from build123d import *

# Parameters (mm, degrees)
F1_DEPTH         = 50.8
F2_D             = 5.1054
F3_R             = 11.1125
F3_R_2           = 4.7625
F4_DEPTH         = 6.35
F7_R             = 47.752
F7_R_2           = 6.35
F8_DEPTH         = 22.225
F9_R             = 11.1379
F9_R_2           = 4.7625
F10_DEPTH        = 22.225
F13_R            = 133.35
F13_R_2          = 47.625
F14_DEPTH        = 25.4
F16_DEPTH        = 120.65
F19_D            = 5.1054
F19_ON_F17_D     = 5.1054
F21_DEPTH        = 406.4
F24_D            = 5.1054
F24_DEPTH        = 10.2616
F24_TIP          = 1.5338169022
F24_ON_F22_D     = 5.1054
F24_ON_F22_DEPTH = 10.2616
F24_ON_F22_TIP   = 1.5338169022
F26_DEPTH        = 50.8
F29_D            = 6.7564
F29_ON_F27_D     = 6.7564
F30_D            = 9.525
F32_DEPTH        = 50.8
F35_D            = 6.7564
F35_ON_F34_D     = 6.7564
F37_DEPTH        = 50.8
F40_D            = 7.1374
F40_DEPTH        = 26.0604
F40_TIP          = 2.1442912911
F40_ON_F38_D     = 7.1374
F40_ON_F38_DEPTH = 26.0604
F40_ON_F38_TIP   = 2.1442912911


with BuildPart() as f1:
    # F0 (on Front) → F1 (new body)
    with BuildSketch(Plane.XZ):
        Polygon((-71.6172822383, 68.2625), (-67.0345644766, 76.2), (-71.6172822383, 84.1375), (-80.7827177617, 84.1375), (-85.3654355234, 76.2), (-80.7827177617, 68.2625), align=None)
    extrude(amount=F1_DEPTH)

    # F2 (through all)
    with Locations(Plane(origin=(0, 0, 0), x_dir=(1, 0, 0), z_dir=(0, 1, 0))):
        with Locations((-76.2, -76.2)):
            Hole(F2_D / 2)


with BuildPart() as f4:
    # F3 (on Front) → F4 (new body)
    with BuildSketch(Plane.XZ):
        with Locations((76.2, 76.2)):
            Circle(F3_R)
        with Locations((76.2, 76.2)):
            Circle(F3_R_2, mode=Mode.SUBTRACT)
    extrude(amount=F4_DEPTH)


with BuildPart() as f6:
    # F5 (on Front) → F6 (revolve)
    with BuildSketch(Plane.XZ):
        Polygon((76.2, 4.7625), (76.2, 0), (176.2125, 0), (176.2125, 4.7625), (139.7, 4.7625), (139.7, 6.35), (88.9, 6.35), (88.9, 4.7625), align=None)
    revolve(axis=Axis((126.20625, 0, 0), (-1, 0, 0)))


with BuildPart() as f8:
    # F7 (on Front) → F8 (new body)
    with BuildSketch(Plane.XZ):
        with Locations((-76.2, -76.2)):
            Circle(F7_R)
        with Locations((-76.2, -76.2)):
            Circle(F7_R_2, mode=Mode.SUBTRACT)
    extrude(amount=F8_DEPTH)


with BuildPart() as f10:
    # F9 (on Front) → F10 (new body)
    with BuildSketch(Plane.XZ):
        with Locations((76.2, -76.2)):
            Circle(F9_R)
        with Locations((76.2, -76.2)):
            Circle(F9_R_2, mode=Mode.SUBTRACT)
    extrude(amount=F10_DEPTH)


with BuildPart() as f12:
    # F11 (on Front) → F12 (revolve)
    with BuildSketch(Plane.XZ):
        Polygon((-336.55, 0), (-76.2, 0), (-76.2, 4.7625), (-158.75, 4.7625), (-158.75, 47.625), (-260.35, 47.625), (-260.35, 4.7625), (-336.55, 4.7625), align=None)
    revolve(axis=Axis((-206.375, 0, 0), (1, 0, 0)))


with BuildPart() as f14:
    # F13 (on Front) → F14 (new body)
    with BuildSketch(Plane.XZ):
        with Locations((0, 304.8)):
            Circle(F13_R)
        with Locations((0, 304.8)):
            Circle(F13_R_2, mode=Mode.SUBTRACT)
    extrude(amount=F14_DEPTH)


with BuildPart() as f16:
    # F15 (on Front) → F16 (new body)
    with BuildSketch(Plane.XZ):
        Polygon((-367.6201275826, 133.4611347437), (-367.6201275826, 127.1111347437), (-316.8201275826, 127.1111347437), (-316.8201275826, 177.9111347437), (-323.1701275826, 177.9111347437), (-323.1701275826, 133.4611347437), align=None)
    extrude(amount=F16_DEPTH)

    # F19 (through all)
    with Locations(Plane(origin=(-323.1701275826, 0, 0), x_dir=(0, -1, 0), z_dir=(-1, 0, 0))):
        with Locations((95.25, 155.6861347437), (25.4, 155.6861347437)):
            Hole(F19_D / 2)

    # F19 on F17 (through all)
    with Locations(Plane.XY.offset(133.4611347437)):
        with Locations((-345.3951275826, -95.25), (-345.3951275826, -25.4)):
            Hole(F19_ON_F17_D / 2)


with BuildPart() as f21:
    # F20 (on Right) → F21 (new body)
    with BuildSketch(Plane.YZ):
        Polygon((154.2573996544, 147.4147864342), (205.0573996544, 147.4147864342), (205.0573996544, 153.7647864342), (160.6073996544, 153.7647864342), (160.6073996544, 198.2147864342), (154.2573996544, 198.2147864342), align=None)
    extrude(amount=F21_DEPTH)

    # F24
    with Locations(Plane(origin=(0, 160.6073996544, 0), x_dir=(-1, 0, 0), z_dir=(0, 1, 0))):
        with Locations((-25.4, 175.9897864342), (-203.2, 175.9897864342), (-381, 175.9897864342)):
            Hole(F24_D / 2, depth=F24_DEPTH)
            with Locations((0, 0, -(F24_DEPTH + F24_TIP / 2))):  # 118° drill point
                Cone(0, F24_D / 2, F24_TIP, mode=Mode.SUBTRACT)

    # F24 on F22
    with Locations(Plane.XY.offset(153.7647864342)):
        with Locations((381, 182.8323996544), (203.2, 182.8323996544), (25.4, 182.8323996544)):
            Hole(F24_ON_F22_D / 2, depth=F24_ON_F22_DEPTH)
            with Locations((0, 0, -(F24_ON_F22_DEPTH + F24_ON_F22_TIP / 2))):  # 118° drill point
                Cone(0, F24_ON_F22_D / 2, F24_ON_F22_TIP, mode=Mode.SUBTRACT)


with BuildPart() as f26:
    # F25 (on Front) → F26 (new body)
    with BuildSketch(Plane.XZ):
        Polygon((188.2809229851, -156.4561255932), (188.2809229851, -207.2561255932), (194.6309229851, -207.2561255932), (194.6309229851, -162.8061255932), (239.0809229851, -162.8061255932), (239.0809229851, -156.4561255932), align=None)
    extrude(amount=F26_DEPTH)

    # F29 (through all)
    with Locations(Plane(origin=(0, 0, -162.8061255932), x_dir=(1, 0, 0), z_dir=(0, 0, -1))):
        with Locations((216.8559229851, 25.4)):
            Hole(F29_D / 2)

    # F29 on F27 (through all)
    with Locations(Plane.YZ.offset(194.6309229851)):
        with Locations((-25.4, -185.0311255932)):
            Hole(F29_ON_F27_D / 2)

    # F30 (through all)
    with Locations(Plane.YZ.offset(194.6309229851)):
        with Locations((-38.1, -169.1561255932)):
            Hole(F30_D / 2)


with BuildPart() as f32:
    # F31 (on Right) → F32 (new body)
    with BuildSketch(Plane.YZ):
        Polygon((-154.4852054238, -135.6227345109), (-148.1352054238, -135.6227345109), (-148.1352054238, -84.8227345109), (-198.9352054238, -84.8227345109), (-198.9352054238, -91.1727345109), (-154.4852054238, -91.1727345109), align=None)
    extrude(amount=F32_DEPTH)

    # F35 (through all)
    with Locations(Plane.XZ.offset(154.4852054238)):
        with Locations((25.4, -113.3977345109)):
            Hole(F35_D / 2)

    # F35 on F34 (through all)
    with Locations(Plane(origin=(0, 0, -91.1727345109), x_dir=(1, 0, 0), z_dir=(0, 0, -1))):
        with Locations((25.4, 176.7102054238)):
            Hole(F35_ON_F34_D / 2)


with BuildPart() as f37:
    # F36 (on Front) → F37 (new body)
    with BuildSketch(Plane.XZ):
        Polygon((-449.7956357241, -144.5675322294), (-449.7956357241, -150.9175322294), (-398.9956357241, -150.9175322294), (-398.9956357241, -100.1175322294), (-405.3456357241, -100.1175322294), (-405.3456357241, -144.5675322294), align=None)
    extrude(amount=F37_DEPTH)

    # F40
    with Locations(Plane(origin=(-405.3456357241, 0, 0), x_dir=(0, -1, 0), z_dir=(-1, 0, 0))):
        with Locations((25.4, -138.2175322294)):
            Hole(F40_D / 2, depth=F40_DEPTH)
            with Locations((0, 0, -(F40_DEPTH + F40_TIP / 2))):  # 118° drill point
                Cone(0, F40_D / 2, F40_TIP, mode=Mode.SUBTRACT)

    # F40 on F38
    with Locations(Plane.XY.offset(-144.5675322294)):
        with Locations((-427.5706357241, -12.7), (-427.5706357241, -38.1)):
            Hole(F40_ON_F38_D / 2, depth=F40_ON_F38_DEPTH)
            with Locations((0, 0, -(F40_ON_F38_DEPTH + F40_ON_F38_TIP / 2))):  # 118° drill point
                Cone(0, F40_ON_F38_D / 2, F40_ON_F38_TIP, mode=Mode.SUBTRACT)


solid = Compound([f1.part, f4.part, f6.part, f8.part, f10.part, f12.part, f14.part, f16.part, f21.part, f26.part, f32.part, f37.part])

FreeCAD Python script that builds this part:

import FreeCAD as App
import Part
import Sketcher
from FreeCAD import Vector
Q = App.Units.Quantity

doc = App.newDocument("Part")
body = doc.addObject("PartDesign::Body", "Body")

# Sketch on XZ plane
sketch1 = doc.addObject("Sketcher::SketchObject", "Sketch")
body.addObject(sketch1)
sketch1.AttachmentSupport = (doc.XZ_Plane, [""])
sketch1.MapMode = "FlatFace"
sketch1.addGeometry([
    Part.LineSegment(Vector(-72, 68, 0), Vector(-67, 76, 0)),  # 0
    Part.LineSegment(Vector(-67, 76, 0), Vector(-72, 84, 0)),  # 1
    Part.LineSegment(Vector(-72, 84, 0), Vector(-81, 84, 0)),  # 2
    Part.LineSegment(Vector(-81, 84, 0), Vector(-85, 76, 0)),  # 3
    Part.LineSegment(Vector(-85, 76, 0), Vector(-81, 68, 0)),  # 4
    Part.LineSegment(Vector(-81, 68, 0), Vector(-72, 68, 0)),  # 5
], False)
sketch1.addConstraint([
    Sketcher.Constraint("Coincident", 0, 2, 1, 1),
    Sketcher.Constraint("Coincident", 1, 2, 2, 1),
    Sketcher.Constraint("Coincident", 2, 2, 3, 1),
    Sketcher.Constraint("Coincident", 3, 2, 4, 1),
    Sketcher.Constraint("Coincident", 4, 2, 5, 1),
    Sketcher.Constraint("Coincident", 5, 2, 0, 1),
    Sketcher.Constraint("Horizontal", 2),
    Sketcher.Constraint("Horizontal", 5),
    Sketcher.Constraint("Parallel", 0, 3),
    Sketcher.Constraint("Parallel", 1, 4),
    Sketcher.Constraint("Horizontal", 0, 2, 3, 2),
    Sketcher.Constraint("Vertical", 2, 2, 4, 2),
    Sketcher.Constraint("Vertical", 1, 2, 5, 2),
    Sketcher.Constraint("DistanceY", -1, 1, 0, 2, Q("3 in")),
    Sketcher.Constraint("Angle", 0, Q("60 deg")),
    Sketcher.Constraint("DistanceY", -1, 1, 1, 2, Q("3.3125 in")),
    Sketcher.Constraint("DistanceX", 2, 2, 2, 1, Q("9.165436 mm")),
    Sketcher.Constraint("DistanceX", 0, 2, -1, 1, Q("67.034564 mm")),
])
pad1 = doc.addObject("PartDesign::Pad", "Pad")
body.addObject(pad1)
pad1.Profile = sketch1
pad1.Length = Q("2 in")

# Sketch on XZ plane
sketch2 = doc.addObject("Sketcher::SketchObject", "Sketch001")
body.addObject(sketch2)
sketch2.AttachmentSupport = (doc.XZ_Plane, [""])
sketch2.MapMode = "FlatFace"
sketch2.addGeometry(Part.Circle(Vector(-76.2, 76.2, 0), Vector(0, 0, 1), 2.6), False)
sketch2.addConstraint([
    Sketcher.Constraint("Diameter", 0, Q("0.201 in")),
    Sketcher.Constraint("DistanceX", 0, 3, -1, 1, Q("3 in")),
    Sketcher.Constraint("DistanceY", -1, 1, 0, 3, Q("3 in")),
])
doc.recompute()
hole = doc.addObject("PartDesign::Hole", "Hole")
body.addObject(hole)
hole.Profile = sketch2
hole.ThreadType = "None"
hole.Diameter = Q("0.201 in")
hole.DepthType = "ThroughAll"
hole.Reversed = True
body2 = doc.addObject("PartDesign::Body", "Body001")

# Sketch on XZ plane
sketch3 = doc.addObject("Sketcher::SketchObject", "Sketch002")
body2.addObject(sketch3)
sketch3.AttachmentSupport = (doc.getObject("XZ_Plane001"), [""])
sketch3.MapMode = "FlatFace"
sketch3.addGeometry([
    Part.Circle(Vector(76.2, 76.2, 0), Vector(0, 0, 1), 11.1),
    Part.Circle(Vector(76.2, 76.2, 0), Vector(0, 0, 1), 4.8),
], False)
sketch3.addConstraint([
    Sketcher.Constraint("Coincident", 1, 3, 0, 3),
    Sketcher.Constraint("Diameter", 0, Q("0.875 in")),
    Sketcher.Constraint("Diameter", 1, Q("0.375 in")),
    Sketcher.Constraint("DistanceX", -1, 1, 0, 3, Q("3 in")),
    Sketcher.Constraint("DistanceY", -1, 1, 0, 3, Q("3 in")),
])
pad2 = doc.addObject("PartDesign::Pad", "Pad001")
body2.addObject(pad2)
pad2.Profile = sketch3
pad2.Length = Q("0.25 in")
body3 = doc.addObject("PartDesign::Body", "Body002")

# Sketch on XZ plane
sketch4 = doc.addObject("Sketcher::SketchObject", "Sketch003")
body3.addObject(sketch4)
sketch4.AttachmentSupport = (doc.getObject("XZ_Plane002"), [""])
sketch4.MapMode = "FlatFace"
sketch4.addGeometry([
    Part.LineSegment(Vector(76.2, 4.8, 0), Vector(76.2, 0, 0)),  # 0
    Part.LineSegment(Vector(76.2, 0, 0), Vector(176.2, 0, 0)),  # 1
    Part.LineSegment(Vector(176.2, 0, 0), Vector(176.2, 4.8, 0)),  # 2
    Part.LineSegment(Vector(176.2, 4.8, 0), Vector(139.7, 4.8, 0)),  # 3
    Part.LineSegment(Vector(139.7, 4.8, 0), Vector(139.7, 6.3, 0)),  # 4
    Part.LineSegment(Vector(139.7, 6.3, 0), Vector(88.9, 6.3, 0)),  # 5
    Part.LineSegment(Vector(88.9, 6.3, 0), Vector(88.9, 4.8, 0)),  # 6
    Part.LineSegment(Vector(88.9, 4.8, 0), Vector(76.2, 4.8, 0)),  # 7
], False)
sketch4.addConstraint([
    Sketcher.Constraint("Coincident", 0, 2, 1, 1),
    Sketcher.Constraint("Coincident", 1, 2, 2, 1),
    Sketcher.Constraint("Coincident", 2, 2, 3, 1),
    Sketcher.Constraint("Coincident", 3, 2, 4, 1),
    Sketcher.Constraint("Coincident", 4, 2, 5, 1),
    Sketcher.Constraint("Coincident", 5, 2, 6, 1),
    Sketcher.Constraint("Coincident", 6, 2, 7, 1),
    Sketcher.Constraint("Coincident", 7, 2, 0, 1),
    Sketcher.Constraint("Vertical", 0),
    Sketcher.Constraint("Horizontal", 1),
    Sketcher.Constraint("Vertical", 2),
    Sketcher.Constraint("Horizontal", 3),
    Sketcher.Constraint("Vertical", 4),
    Sketcher.Constraint("Horizontal", 5),
    Sketcher.Constraint("Vertical", 6),
    Sketcher.Constraint("Horizontal", 7),
    Sketcher.Constraint("PointOnObject", 0, 2, -1),
    Sketcher.Constraint("Horizontal", 3, 2, 6, 2),
    Sketcher.Constraint("DistanceX", 5, 2, 5, 1, Q("2 in")),
    Sketcher.Constraint("DistanceX", 7, 2, 7, 1, Q("0.5 in")),
    Sketcher.Constraint("DistanceX", -1, 1, 0, 2, Q("3 in")),
    Sketcher.Constraint("DistanceX", 1, 1, 1, 2, Q("3.9375 in")),
    Sketcher.Constraint("DistanceY", 0, 2, 0, 1, Q("0.1875 in")),
    Sketcher.Constraint("DistanceY", 4, 1, 4, 2, Q("0.0625 in")),
])
revolution = doc.addObject("PartDesign::Revolution", "Revolution")
body3.addObject(revolution)
revolution.Profile = sketch4
revolution.ReferenceAxis = (sketch4, ["H_Axis"])
revolution.Angle = 360
body4 = doc.addObject("PartDesign::Body", "Body003")

# Sketch on XZ plane
sketch5 = doc.addObject("Sketcher::SketchObject", "Sketch004")
body4.addObject(sketch5)
sketch5.AttachmentSupport = (doc.getObject("XZ_Plane003"), [""])
sketch5.MapMode = "FlatFace"
sketch5.addGeometry([
    Part.Circle(Vector(-76, -76, 0), Vector(0, 0, 1), 48),
    Part.Circle(Vector(-76, -76, 0), Vector(0, 0, 1), 6),
], False)
sketch5.addConstraint([
    Sketcher.Constraint("Coincident", 1, 3, 0, 3),
    Sketcher.Constraint("Diameter", 1, Q("0.5 in")),
    Sketcher.Constraint("Diameter", 0, Q("3.76 in")),
    Sketcher.Constraint("DistanceX", 0, 3, -1, 1, Q("3 in")),
    Sketcher.Constraint("DistanceY", 0, 3, -1, 1, Q("3 in")),
])
pad3 = doc.addObject("PartDesign::Pad", "Pad002")
body4.addObject(pad3)
pad3.Profile = sketch5
pad3.Length = Q("0.875 in")
body5 = doc.addObject("PartDesign::Body", "Body004")

# Sketch on XZ plane
sketch6 = doc.addObject("Sketcher::SketchObject", "Sketch005")
body5.addObject(sketch6)
sketch6.AttachmentSupport = (doc.getObject("XZ_Plane004"), [""])
sketch6.MapMode = "FlatFace"
sketch6.addGeometry([
    Part.Circle(Vector(76.2, -76.2, 0), Vector(0, 0, 1), 11.1),
    Part.Circle(Vector(76.2, -76.2, 0), Vector(0, 0, 1), 4.8),
], False)
sketch6.addConstraint([
    Sketcher.Constraint("Coincident", 1, 3, 0, 3),
    Sketcher.Constraint("Diameter", 0, Q("0.877 in")),
    Sketcher.Constraint("Diameter", 1, Q("0.375 in")),
    Sketcher.Constraint("DistanceX", -1, 1, 0, 3, Q("3 in")),
    Sketcher.Constraint("DistanceY", 0, 3, -1, 1, Q("3 in")),
])
pad4 = doc.addObject("PartDesign::Pad", "Pad003")
body5.addObject(pad4)
pad4.Profile = sketch6
pad4.Length = Q("0.875 in")
body6 = doc.addObject("PartDesign::Body", "Body005")

# Sketch on XZ plane
sketch7 = doc.addObject("Sketcher::SketchObject", "Sketch006")
body6.addObject(sketch7)
sketch7.AttachmentSupport = (doc.getObject("XZ_Plane005"), [""])
sketch7.MapMode = "FlatFace"
sketch7.addGeometry([
    Part.LineSegment(Vector(-336.6, 0, 0), Vector(-76.2, 0, 0)),  # 0
    Part.LineSegment(Vector(-76.2, 0, 0), Vector(-76.2, 4.8, 0)),  # 1
    Part.LineSegment(Vector(-76.2, 4.8, 0), Vector(-158.8, 4.8, 0)),  # 2
    Part.LineSegment(Vector(-158.8, 4.8, 0), Vector(-158.8, 47.6, 0)),  # 3
    Part.LineSegment(Vector(-158.8, 47.6, 0), Vector(-260.4, 47.6, 0)),  # 4
    Part.LineSegment(Vector(-260.4, 47.6, 0), Vector(-260.4, 4.8, 0)),  # 5
    Part.LineSegment(Vector(-260.4, 4.8, 0), Vector(-336.6, 4.8, 0)),  # 6
    Part.LineSegment(Vector(-336.6, 4.8, 0), Vector(-336.6, 0, 0)),  # 7
], False)
sketch7.addConstraint([
    Sketcher.Constraint("Coincident", 0, 2, 1, 1),
    Sketcher.Constraint("Coincident", 1, 2, 2, 1),
    Sketcher.Constraint("Coincident", 2, 2, 3, 1),
    Sketcher.Constraint("Coincident", 3, 2, 4, 1),
    Sketcher.Constraint("Coincident", 4, 2, 5, 1),
    Sketcher.Constraint("Coincident", 5, 2, 6, 1),
    Sketcher.Constraint("Coincident", 6, 2, 7, 1),
    Sketcher.Constraint("Coincident", 7, 2, 0, 1),
    Sketcher.Constraint("Horizontal", 0),
    Sketcher.Constraint("Vertical", 1),
    Sketcher.Constraint("Horizontal", 2),
    Sketcher.Constraint("Vertical", 3),
    Sketcher.Constraint("Horizontal", 4),
    Sketcher.Constraint("Vertical", 5),
    Sketcher.Constraint("Horizontal", 6),
    Sketcher.Constraint("Vertical", 7),
    Sketcher.Constraint("PointOnObject", 0, 2, -1),
    Sketcher.Constraint("Horizontal", 2, 2, 5, 2),
    Sketcher.Constraint("DistanceX", 4, 2, 4, 1, Q("4 in")),
    Sketcher.Constraint("DistanceX", 6, 2, 6, 1, Q("3 in")),
    Sketcher.Constraint("DistanceX", 0, 2, -1, 1, Q("3 in")),
    Sketcher.Constraint("DistanceX", 0, 1, 0, 2, Q("10.25 in")),
    Sketcher.Constraint("DistanceY", 1, 1, 1, 2, Q("0.1875 in")),
    Sketcher.Constraint("DistanceY", 3, 1, 3, 2, Q("1.6875 in")),
])
revolution2 = doc.addObject("PartDesign::Revolution", "Revolution001")
body6.addObject(revolution2)
revolution2.Profile = sketch7
revolution2.ReferenceAxis = (sketch7, ["H_Axis"])
revolution2.Angle = 360
body7 = doc.addObject("PartDesign::Body", "Body006")

# Sketch on XZ plane
sketch8 = doc.addObject("Sketcher::SketchObject", "Sketch007")
body7.addObject(sketch8)
sketch8.AttachmentSupport = (doc.getObject("XZ_Plane006"), [""])
sketch8.MapMode = "FlatFace"
sketch8.addGeometry([
    Part.Circle(Vector(0, 305, 0), Vector(0, 0, 1), 133),
    Part.Circle(Vector(0, 305, 0), Vector(0, 0, 1), 48),
], False)
sketch8.addConstraint([
    Sketcher.Constraint("Coincident", 1, 3, 0, 3),
    Sketcher.Constraint("PointOnObject", 0, 3, -2),
    Sketcher.Constraint("Diameter", 0, Q("10.5 in")),
    Sketcher.Constraint("Diameter", 1, Q("3.75 in")),
    Sketcher.Constraint("DistanceY", -1, 1, 0, 3, Q("12 in")),
])
pad5 = doc.addObject("PartDesign::Pad", "Pad004")
body7.addObject(pad5)
pad5.Profile = sketch8
pad5.Length = Q("1 in")
body8 = doc.addObject("PartDesign::Body", "Body007")

# Sketch on XZ plane
sketch9 = doc.addObject("Sketcher::SketchObject", "Sketch008")
body8.addObject(sketch9)
sketch9.AttachmentSupport = (doc.getObject("XZ_Plane007"), [""])
sketch9.MapMode = "FlatFace"
sketch9.addGeometry([
    Part.LineSegment(Vector(-368, 133, 0), Vector(-368, 127, 0)),  # 0
    Part.LineSegment(Vector(-368, 127, 0), Vector(-317, 127, 0)),  # 1
    Part.LineSegment(Vector(-317, 127, 0), Vector(-317, 178, 0)),  # 2
    Part.LineSegment(Vector(-317, 178, 0), Vector(-323, 178, 0)),  # 3
    Part.LineSegment(Vector(-323, 178, 0), Vector(-323, 133, 0)),  # 4
    Part.LineSegment(Vector(-323, 133, 0), Vector(-368, 133, 0)),  # 5
], False)
sketch9.addConstraint([
    Sketcher.Constraint("Coincident", 0, 2, 1, 1),
    Sketcher.Constraint("Coincident", 1, 2, 2, 1),
    Sketcher.Constraint("Coincident", 2, 2, 3, 1),
    Sketcher.Constraint("Coincident", 3, 2, 4, 1),
    Sketcher.Constraint("Coincident", 4, 2, 5, 1),
    Sketcher.Constraint("Coincident", 5, 2, 0, 1),
    Sketcher.Constraint("Vertical", 0),
    Sketcher.Constraint("Horizontal", 1),
    Sketcher.Constraint("Vertical", 2),
    Sketcher.Constraint("Horizontal", 3),
    Sketcher.Constraint("Vertical", 4),
    Sketcher.Constraint("Horizontal", 5),
    Sketcher.Constraint("Equal", 3, 0),
    Sketcher.Constraint("Equal", 1, 2),
    Sketcher.Constraint("DistanceX", 1, 1, 1, 2, Q("2 in")),
    Sketcher.Constraint("DistanceX", 3, 2, 3, 1, Q("0.25 in")),
    Sketcher.Constraint("DistanceX", 0, 2, -1, 1, Q("367.620128 mm")),
    Sketcher.Constraint("DistanceY", -1, 1, 0, 2, Q("127.111135 mm")),
])
pad6 = doc.addObject("PartDesign::Pad", "Pad005")
body8.addObject(pad6)
pad6.Profile = sketch9
pad6.Length = Q("4.75 in")

# Sketch on YZ plane
sketch10 = doc.addObject("Sketcher::SketchObject", "Sketch009")
body8.addObject(sketch10)
sketch10.AttachmentSupport = (doc.getObject("YZ_Plane007"), [""])
sketch10.MapMode = "FlatFace"
sketch10.AttachmentOffset = App.Placement(Vector(0, 0, -323.170128), App.Rotation())
sketch10.addGeometry([
    Part.Circle(Vector(-95.2, 155.7, 0), Vector(0, 0, 1), 2.6),
    Part.Circle(Vector(-25.4, 155.7, 0), Vector(0, 0, 1), 2.6),
], False)
sketch10.addConstraint([
    Sketcher.Constraint("Equal", 0, 1),
    Sketcher.Constraint("Horizontal", 0, 3, 1, 3),
    Sketcher.Constraint("Diameter", 0, Q("0.201 in")),
    Sketcher.Constraint("DistanceX", 1, 3, -1, 1, Q("1 in")),
    Sketcher.Constraint("DistanceX", 0, 3, -1, 1, Q("3.75 in")),
    Sketcher.Constraint("DistanceY", -1, 1, 0, 3, Q("155.686135 mm")),
])
doc.recompute()
hole2 = doc.addObject("PartDesign::Hole", "Hole001")
body8.addObject(hole2)
hole2.Profile = sketch10
hole2.ThreadType = "None"
hole2.Diameter = Q("0.201 in")
hole2.DepthType = "ThroughAll"
hole2.Reversed = True

# Sketch on XY plane
sketch11 = doc.addObject("Sketcher::SketchObject", "Sketch010")
body8.addObject(sketch11)
sketch11.AttachmentSupport = (doc.getObject("XY_Plane007"), [""])
sketch11.MapMode = "FlatFace"
sketch11.AttachmentOffset = App.Placement(Vector(0, 0, 133.461135), App.Rotation())
sketch11.addGeometry([
    Part.Circle(Vector(-345.4, -95.2, 0), Vector(0, 0, 1), 2.6),
    Part.Circle(Vector(-345.4, -25.4, 0), Vector(0, 0, 1), 2.6),
], False)
sketch11.addConstraint([
    Sketcher.Constraint("Equal", 0, 1),
    Sketcher.Constraint("Vertical", 0, 3, 1, 3),
    Sketcher.Constraint("Diameter", 0, Q("0.201 in")),
    Sketcher.Constraint("DistanceY", 1, 3, -1, 1, Q("1 in")),
    Sketcher.Constraint("DistanceY", 0, 3, -1, 1, Q("3.75 in")),
    Sketcher.Constraint("DistanceX", 0, 3, -1, 1, Q("345.395128 mm")),
])
doc.recompute()
hole3 = doc.addObject("PartDesign::Hole", "Hole002")
body8.addObject(hole3)
hole3.Profile = sketch11
hole3.ThreadType = "None"
hole3.Diameter = Q("0.201 in")
hole3.DepthType = "ThroughAll"
body9 = doc.addObject("PartDesign::Body", "Body008")

# Sketch on YZ plane
sketch12 = doc.addObject("Sketcher::SketchObject", "Sketch011")
body9.addObject(sketch12)
sketch12.AttachmentSupport = (doc.getObject("YZ_Plane008"), [""])
sketch12.MapMode = "FlatFace"
sketch12.addGeometry([
    Part.LineSegment(Vector(154, 147, 0), Vector(205, 147, 0)),  # 0
    Part.LineSegment(Vector(205, 147, 0), Vector(205, 154, 0)),  # 1
    Part.LineSegment(Vector(205, 154, 0), Vector(161, 154, 0)),  # 2
    Part.LineSegment(Vector(161, 154, 0), Vector(161, 198, 0)),  # 3
    Part.LineSegment(Vector(161, 198, 0), Vector(154, 198, 0)),  # 4
    Part.LineSegment(Vector(154, 198, 0), Vector(154, 147, 0)),  # 5
], False)
sketch12.addConstraint([
    Sketcher.Constraint("Coincident", 0, 2, 1, 1),
    Sketcher.Constraint("Coincident", 1, 2, 2, 1),
    Sketcher.Constraint("Coincident", 2, 2, 3, 1),
    Sketcher.Constraint("Coincident", 3, 2, 4, 1),
    Sketcher.Constraint("Coincident", 4, 2, 5, 1),
    Sketcher.Constraint("Coincident", 5, 2, 0, 1),
    Sketcher.Constraint("Horizontal", 0),
    Sketcher.Constraint("Vertical", 1),
    Sketcher.Constraint("Horizontal", 2),
    Sketcher.Constraint("Vertical", 3),
    Sketcher.Constraint("Horizontal", 4),
    Sketcher.Constraint("Vertical", 5),
    Sketcher.Constraint("Equal", 4, 1),
    Sketcher.Constraint("Equal", 2, 3),
    Sketcher.Constraint("DistanceX", 0, 1, 0, 2, Q("2 in")),
    Sketcher.Constraint("DistanceX", 2, 2, 2, 1, Q("1.75 in")),
    Sketcher.Constraint("DistanceX", -1, 1, 0, 2, Q("205.0574 mm")),
    Sketcher.Constraint("DistanceY", -1, 1, 0, 2, Q("147.414786 mm")),
])
pad7 = doc.addObject("PartDesign::Pad", "Pad006")
body9.addObject(pad7)
pad7.Profile = sketch12
pad7.Length = Q("16 in")

# Sketch on XZ plane
sketch13 = doc.addObject("Sketcher::SketchObject", "Sketch012")
body9.addObject(sketch13)
sketch13.AttachmentSupport = (doc.getObject("XZ_Plane008"), [""])
sketch13.MapMode = "FlatFace"
sketch13.AttachmentOffset = App.Placement(Vector(0, 0, -160.6074), App.Rotation())
sketch13.addGeometry([
    Part.Circle(Vector(25.4, 176, 0), Vector(0, 0, 1), 2.6),
    Part.Circle(Vector(203.2, 176, 0), Vector(0, 0, 1), 2.6),
    Part.Circle(Vector(381, 176, 0), Vector(0, 0, 1), 2.6),
], False)
sketch13.addConstraint([
    Sketcher.Constraint("Equal", 0, 1),
    Sketcher.Constraint("Equal", 1, 2),
    Sketcher.Constraint("Horizontal", 0, 3, 1, 3),
    Sketcher.Constraint("Horizontal", 1, 3, 2, 3),
    Sketcher.Constraint("Diameter", 0, Q("0.201 in")),
    Sketcher.Constraint("DistanceX", -1, 1, 0, 3, Q("1 in")),
    Sketcher.Constraint("DistanceX", -1, 1, 1, 3, Q("8 in")),
    Sketcher.Constraint("DistanceX", -1, 1, 2, 3, Q("15 in")),
    Sketcher.Constraint("DistanceY", -1, 1, 0, 3, Q("175.989786 mm")),
])
doc.recompute()
hole4 = doc.addObject("PartDesign::Hole", "Hole003")
body9.addObject(hole4)
hole4.Profile = sketch13
hole4.ThreadType = "None"
hole4.Diameter = Q("0.201 in")
hole4.DepthType = "Dimension"
hole4.Depth = Q("0.404 in")
hole4.DrillPoint = "Angled"
hole4.DrillPointAngle = 118
hole4.Reversed = True

# Sketch on XY plane
sketch14 = doc.addObject("Sketcher::SketchObject", "Sketch013")
body9.addObject(sketch14)
sketch14.AttachmentSupport = (doc.getObject("XY_Plane008"), [""])
sketch14.MapMode = "FlatFace"
sketch14.AttachmentOffset = App.Placement(Vector(0, 0, 153.764786), App.Rotation())
sketch14.addGeometry([
    Part.Circle(Vector(381, 182.8, 0), Vector(0, 0, 1), 2.6),
    Part.Circle(Vector(203.2, 182.8, 0), Vector(0, 0, 1), 2.6),
    Part.Circle(Vector(25.4, 182.8, 0), Vector(0, 0, 1), 2.6),
], False)
sketch14.addConstraint([
    Sketcher.Constraint("Equal", 0, 1),
    Sketcher.Constraint("Equal", 1, 2),
    Sketcher.Constraint("Horizontal", 0, 3, 1, 3),
    Sketcher.Constraint("Horizontal", 1, 3, 2, 3),
    Sketcher.Constraint("Diameter", 0, Q("0.201 in")),
    Sketcher.Constraint("DistanceX", -1, 1, 0, 3, Q("15 in")),
    Sketcher.Constraint("DistanceX", -1, 1, 1, 3, Q("8 in")),
    Sketcher.Constraint("DistanceX", -1, 1, 2, 3, Q("1 in")),
    Sketcher.Constraint("DistanceY", -1, 1, 0, 3, Q("182.8324 mm")),
])
doc.recompute()
hole5 = doc.addObject("PartDesign::Hole", "Hole004")
body9.addObject(hole5)
hole5.Profile = sketch14
hole5.ThreadType = "None"
hole5.Diameter = Q("0.201 in")
hole5.DepthType = "Dimension"
hole5.Depth = Q("0.404 in")
hole5.DrillPoint = "Angled"
hole5.DrillPointAngle = 118
body10 = doc.addObject("PartDesign::Body", "Body009")

# Sketch on XZ plane
sketch15 = doc.addObject("Sketcher::SketchObject", "Sketch014")
body10.addObject(sketch15)
sketch15.AttachmentSupport = (doc.getObject("XZ_Plane009"), [""])
sketch15.MapMode = "FlatFace"
sketch15.addGeometry([
    Part.LineSegment(Vector(188, -156, 0), Vector(188, -207, 0)),  # 0
    Part.LineSegment(Vector(188, -207, 0), Vector(195, -207, 0)),  # 1
    Part.LineSegment(Vector(195, -207, 0), Vector(195, -163, 0)),  # 2
    Part.LineSegment(Vector(195, -163, 0), Vector(239, -163, 0)),  # 3
    Part.LineSegment(Vector(239, -163, 0), Vector(239, -156, 0)),  # 4
    Part.LineSegment(Vector(239, -156, 0), Vector(188, -156, 0)),  # 5
], False)
sketch15.addConstraint([
    Sketcher.Constraint("Coincident", 0, 2, 1, 1),
    Sketcher.Constraint("Coincident", 1, 2, 2, 1),
    Sketcher.Constraint("Coincident", 2, 2, 3, 1),
    Sketcher.Constraint("Coincident", 3, 2, 4, 1),
    Sketcher.Constraint("Coincident", 4, 2, 5, 1),
    Sketcher.Constraint("Coincident", 5, 2, 0, 1),
    Sketcher.Constraint("Vertical", 0),
    Sketcher.Constraint("Horizontal", 1),
    Sketcher.Constraint("Vertical", 2),
    Sketcher.Constraint("Horizontal", 3),
    Sketcher.Constraint("Vertical", 4),
    Sketcher.Constraint("Horizontal", 5),
    Sketcher.Constraint("Equal", 5, 0),
    Sketcher.Constraint("Equal", 3, 2),
    Sketcher.Constraint("DistanceX", 5, 2, 5, 1, Q("2 in")),
    Sketcher.Constraint("DistanceX", 1, 1, 1, 2, Q("0.25 in")),
    Sketcher.Constraint("DistanceX", -1, 1, 0, 2, Q("188.280923 mm")),
    Sketcher.Constraint("DistanceY", 0, 2, -1, 1, Q("207.256126 mm")),
])
pad8 = doc.addObject("PartDesign::Pad", "Pad007")
body10.addObject(pad8)
pad8.Profile = sketch15
pad8.Length = Q("2 in")

# Sketch on XY plane
sketch16 = doc.addObject("Sketcher::SketchObject", "Sketch015")
body10.addObject(sketch16)
sketch16.AttachmentSupport = (doc.getObject("XY_Plane009"), [""])
sketch16.MapMode = "FlatFace"
sketch16.AttachmentOffset = App.Placement(Vector(0, 0, -162.806126), App.Rotation())
sketch16.addGeometry(Part.Circle(Vector(216.9, -25.4, 0), Vector(0, 0, 1), 3.4), False)
sketch16.addConstraint([
    Sketcher.Constraint("Diameter", 0, Q("0.266 in")),
    Sketcher.Constraint("DistanceY", 0, 3, -1, 1, Q("1 in")),
    Sketcher.Constraint("DistanceX", -1, 1, 0, 3, Q("216.855923 mm")),
])
doc.recompute()
hole6 = doc.addObject("PartDesign::Hole", "Hole005")
body10.addObject(hole6)
hole6.Profile = sketch16
hole6.ThreadType = "None"
hole6.Diameter = Q("0.266 in")
hole6.DepthType = "ThroughAll"
hole6.Reversed = True

# Sketch on YZ plane
sketch17 = doc.addObject("Sketcher::SketchObject", "Sketch016")
body10.addObject(sketch17)
sketch17.AttachmentSupport = (doc.getObject("YZ_Plane009"), [""])
sketch17.MapMode = "FlatFace"
sketch17.AttachmentOffset = App.Placement(Vector(0, 0, 194.630923), App.Rotation())
sketch17.addGeometry(Part.Circle(Vector(-25.4, -185, 0), Vector(0, 0, 1), 3.4), False)
sketch17.addConstraint([
    Sketcher.Constraint("Diameter", 0, Q("0.266 in")),
    Sketcher.Constraint("DistanceX", 0, 3, -1, 1, Q("1 in")),
    Sketcher.Constraint("DistanceY", 0, 3, -1, 1, Q("185.031126 mm")),
])
doc.recompute()
hole7 = doc.addObject("PartDesign::Hole", "Hole006")
body10.addObject(hole7)
hole7.Profile = sketch17
hole7.ThreadType = "None"
hole7.Diameter = Q("0.266 in")
hole7.DepthType = "ThroughAll"

# Sketch on YZ plane
sketch18 = doc.addObject("Sketcher::SketchObject", "Sketch017")
body10.addObject(sketch18)
sketch18.AttachmentSupport = (doc.getObject("YZ_Plane009"), [""])
sketch18.MapMode = "FlatFace"
sketch18.AttachmentOffset = App.Placement(Vector(0, 0, 194.630923), App.Rotation())
sketch18.addGeometry(Part.Circle(Vector(-38.1, -169.2, 0), Vector(0, 0, 1), 4.8), False)
sketch18.addConstraint([
    Sketcher.Constraint("Diameter", 0, Q("0.375 in")),
    Sketcher.Constraint("DistanceX", 0, 3, -1, 1, Q("1.5 in")),
    Sketcher.Constraint("DistanceY", 0, 3, -1, 1, Q("169.156126 mm")),
])
doc.recompute()
hole8 = doc.addObject("PartDesign::Hole", "Hole007")
body10.addObject(hole8)
hole8.Profile = sketch18
hole8.ThreadType = "None"
hole8.Diameter = Q("0.375 in")
hole8.DepthType = "ThroughAll"
body11 = doc.addObject("PartDesign::Body", "Body010")

# Sketch on YZ plane
sketch19 = doc.addObject("Sketcher::SketchObject", "Sketch018")
body11.addObject(sketch19)
sketch19.AttachmentSupport = (doc.getObject("YZ_Plane010"), [""])
sketch19.MapMode = "FlatFace"
sketch19.addGeometry([
    Part.LineSegment(Vector(-154, -136, 0), Vector(-148, -136, 0)),  # 0
    Part.LineSegment(Vector(-148, -136, 0), Vector(-148, -85, 0)),  # 1
    Part.LineSegment(Vector(-148, -85, 0), Vector(-199, -85, 0)),  # 2
    Part.LineSegment(Vector(-199, -85, 0), Vector(-199, -91, 0)),  # 3
    Part.LineSegment(Vector(-199, -91, 0), Vector(-154, -91, 0)),  # 4
    Part.LineSegment(Vector(-154, -91, 0), Vector(-154, -136, 0)),  # 5
], False)
sketch19.addConstraint([
    Sketcher.Constraint("Coincident", 0, 2, 1, 1),
    Sketcher.Constraint("Coincident", 1, 2, 2, 1),
    Sketcher.Constraint("Coincident", 2, 2, 3, 1),
    Sketcher.Constraint("Coincident", 3, 2, 4, 1),
    Sketcher.Constraint("Coincident", 4, 2, 5, 1),
    Sketcher.Constraint("Coincident", 5, 2, 0, 1),
    Sketcher.Constraint("Horizontal", 0),
    Sketcher.Constraint("Vertical", 1),
    Sketcher.Constraint("Horizontal", 2),
    Sketcher.Constraint("Vertical", 3),
    Sketcher.Constraint("Horizontal", 4),
    Sketcher.Constraint("Vertical", 5),
    Sketcher.Constraint("Equal", 2, 1),
    Sketcher.Constraint("Equal", 0, 3),
    Sketcher.Constraint("DistanceX", 2, 2, 2, 1, Q("2 in")),
    Sketcher.Constraint("DistanceX", 0, 1, 0, 2, Q("0.25 in")),
    Sketcher.Constraint("DistanceX", 0, 2, -1, 1, Q("148.135205 mm")),
    Sketcher.Constraint("DistanceY", 0, 2, -1, 1, Q("135.622735 mm")),
])
pad9 = doc.addObject("PartDesign::Pad", "Pad008")
body11.addObject(pad9)
pad9.Profile = sketch19
pad9.Length = Q("2 in")

# Sketch on XZ plane
sketch20 = doc.addObject("Sketcher::SketchObject", "Sketch019")
body11.addObject(sketch20)
sketch20.AttachmentSupport = (doc.getObject("XZ_Plane010"), [""])
sketch20.MapMode = "FlatFace"
sketch20.AttachmentOffset = App.Placement(Vector(0, 0, 154.485205), App.Rotation())
sketch20.addGeometry(Part.Circle(Vector(25.4, -113.4, 0), Vector(0, 0, 1), 3.4), False)
sketch20.addConstraint([
    Sketcher.Constraint("Diameter", 0, Q("0.266 in")),
    Sketcher.Constraint("DistanceX", -1, 1, 0, 3, Q("1 in")),
    Sketcher.Constraint("DistanceY", 0, 3, -1, 1, Q("113.397735 mm")),
])
doc.recompute()
hole9 = doc.addObject("PartDesign::Hole", "Hole008")
body11.addObject(hole9)
hole9.Profile = sketch20
hole9.ThreadType = "None"
hole9.Diameter = Q("0.266 in")
hole9.DepthType = "ThroughAll"

# Sketch on XY plane
sketch21 = doc.addObject("Sketcher::SketchObject", "Sketch020")
body11.addObject(sketch21)
sketch21.AttachmentSupport = (doc.getObject("XY_Plane010"), [""])
sketch21.MapMode = "FlatFace"
sketch21.AttachmentOffset = App.Placement(Vector(0, 0, -91.172735), App.Rotation())
sketch21.addGeometry(Part.Circle(Vector(25.4, -176.7, 0), Vector(0, 0, 1), 3.4), False)
sketch21.addConstraint([
    Sketcher.Constraint("Diameter", 0, Q("0.266 in")),
    Sketcher.Constraint("DistanceX", -1, 1, 0, 3, Q("1 in")),
    Sketcher.Constraint("DistanceY", 0, 3, -1, 1, Q("176.710205 mm")),
])
doc.recompute()
hole10 = doc.addObject("PartDesign::Hole", "Hole009")
body11.addObject(hole10)
hole10.Profile = sketch21
hole10.ThreadType = "None"
hole10.Diameter = Q("0.266 in")
hole10.DepthType = "ThroughAll"
hole10.Reversed = True
body12 = doc.addObject("PartDesign::Body", "Body011")

# Sketch on XZ plane
sketch22 = doc.addObject("Sketcher::SketchObject", "Sketch021")
body12.addObject(sketch22)
sketch22.AttachmentSupport = (doc.getObject("XZ_Plane011"), [""])
sketch22.MapMode = "FlatFace"
sketch22.addGeometry([
    Part.LineSegment(Vector(-450, -145, 0), Vector(-450, -151, 0)),  # 0
    Part.LineSegment(Vector(-450, -151, 0), Vector(-399, -151, 0)),  # 1
    Part.LineSegment(Vector(-399, -151, 0), Vector(-399, -100, 0)),  # 2
    Part.LineSegment(Vector(-399, -100, 0), Vector(-405, -100, 0)),  # 3
    Part.LineSegment(Vector(-405, -100, 0), Vector(-405, -145, 0)),  # 4
    Part.LineSegment(Vector(-405, -145, 0), Vector(-450, -145, 0)),  # 5
], False)
sketch22.addConstraint([
    Sketcher.Constraint("Coincident", 0, 2, 1, 1),
    Sketcher.Constraint("Coincident", 1, 2, 2, 1),
    Sketcher.Constraint("Coincident", 2, 2, 3, 1),
    Sketcher.Constraint("Coincident", 3, 2, 4, 1),
    Sketcher.Constraint("Coincident", 4, 2, 5, 1),
    Sketcher.Constraint("Coincident", 5, 2, 0, 1),
    Sketcher.Constraint("Vertical", 0),
    Sketcher.Constraint("Horizontal", 1),
    Sketcher.Constraint("Vertical", 2),
    Sketcher.Constraint("Horizontal", 3),
    Sketcher.Constraint("Vertical", 4),
    Sketcher.Constraint("Horizontal", 5),
    Sketcher.Constraint("Equal", 3, 0),
    Sketcher.Constraint("Equal", 1, 2),
    Sketcher.Constraint("DistanceX", 1, 1, 1, 2, Q("2 in")),
    Sketcher.Constraint("DistanceX", 3, 2, 3, 1, Q("0.25 in")),
    Sketcher.Constraint("DistanceX", 0, 2, -1, 1, Q("449.795636 mm")),
    Sketcher.Constraint("DistanceY", 0, 2, -1, 1, Q("150.917532 mm")),
])
pad10 = doc.addObject("PartDesign::Pad", "Pad009")
body12.addObject(pad10)
pad10.Profile = sketch22
pad10.Length = Q("2 in")

# Sketch on YZ plane
sketch23 = doc.addObject("Sketcher::SketchObject", "Sketch022")
body12.addObject(sketch23)
sketch23.AttachmentSupport = (doc.getObject("YZ_Plane011"), [""])
sketch23.MapMode = "FlatFace"
sketch23.AttachmentOffset = App.Placement(Vector(0, 0, -405.345636), App.Rotation())
sketch23.addGeometry(Part.Circle(Vector(-25.4, -138.2, 0), Vector(0, 0, 1), 3.6), False)
sketch23.addConstraint([
    Sketcher.Constraint("Diameter", 0, Q("0.281 in")),
    Sketcher.Constraint("DistanceX", 0, 3, -1, 1, Q("1 in")),
    Sketcher.Constraint("DistanceY", 0, 3, -1, 1, Q("138.217532 mm")),
])
doc.recompute()
hole11 = doc.addObject("PartDesign::Hole", "Hole010")
body12.addObject(hole11)
hole11.Profile = sketch23
hole11.ThreadType = "None"
hole11.Diameter = Q("0.281 in")
hole11.DepthType = "Dimension"
hole11.Depth = Q("1.026 in")
hole11.DrillPoint = "Angled"
hole11.DrillPointAngle = 118
hole11.Reversed = True

# Sketch on XY plane
sketch24 = doc.addObject("Sketcher::SketchObject", "Sketch023")
body12.addObject(sketch24)
sketch24.AttachmentSupport = (doc.getObject("XY_Plane011"), [""])
sketch24.MapMode = "FlatFace"
sketch24.AttachmentOffset = App.Placement(Vector(0, 0, -144.567532), App.Rotation())
sketch24.addGeometry([
    Part.Circle(Vector(-427.6, -12.7, 0), Vector(0, 0, 1), 3.6),
    Part.Circle(Vector(-427.6, -38.1, 0), Vector(0, 0, 1), 3.6),
], False)
sketch24.addConstraint([
    Sketcher.Constraint("Equal", 0, 1),
    Sketcher.Constraint("Vertical", 0, 3, 1, 3),
    Sketcher.Constraint("Diameter", 0, Q("0.281 in")),
    Sketcher.Constraint("DistanceY", 1, 3, 0, 3, Q("1 in")),
    Sketcher.Constraint("DistanceY", 0, 3, -1, 1, Q("0.5 in")),
    Sketcher.Constraint("DistanceX", 0, 3, -1, 1, Q("427.570636 mm")),
])
doc.recompute()
hole12 = doc.addObject("PartDesign::Hole", "Hole011")
body12.addObject(hole12)
hole12.Profile = sketch24
hole12.ThreadType = "None"
hole12.Diameter = Q("0.281 in")
hole12.DepthType = "Dimension"
hole12.Depth = Q("1.026 in")
hole12.DrillPoint = "Angled"
hole12.DrillPointAngle = 118

doc.recompute()
